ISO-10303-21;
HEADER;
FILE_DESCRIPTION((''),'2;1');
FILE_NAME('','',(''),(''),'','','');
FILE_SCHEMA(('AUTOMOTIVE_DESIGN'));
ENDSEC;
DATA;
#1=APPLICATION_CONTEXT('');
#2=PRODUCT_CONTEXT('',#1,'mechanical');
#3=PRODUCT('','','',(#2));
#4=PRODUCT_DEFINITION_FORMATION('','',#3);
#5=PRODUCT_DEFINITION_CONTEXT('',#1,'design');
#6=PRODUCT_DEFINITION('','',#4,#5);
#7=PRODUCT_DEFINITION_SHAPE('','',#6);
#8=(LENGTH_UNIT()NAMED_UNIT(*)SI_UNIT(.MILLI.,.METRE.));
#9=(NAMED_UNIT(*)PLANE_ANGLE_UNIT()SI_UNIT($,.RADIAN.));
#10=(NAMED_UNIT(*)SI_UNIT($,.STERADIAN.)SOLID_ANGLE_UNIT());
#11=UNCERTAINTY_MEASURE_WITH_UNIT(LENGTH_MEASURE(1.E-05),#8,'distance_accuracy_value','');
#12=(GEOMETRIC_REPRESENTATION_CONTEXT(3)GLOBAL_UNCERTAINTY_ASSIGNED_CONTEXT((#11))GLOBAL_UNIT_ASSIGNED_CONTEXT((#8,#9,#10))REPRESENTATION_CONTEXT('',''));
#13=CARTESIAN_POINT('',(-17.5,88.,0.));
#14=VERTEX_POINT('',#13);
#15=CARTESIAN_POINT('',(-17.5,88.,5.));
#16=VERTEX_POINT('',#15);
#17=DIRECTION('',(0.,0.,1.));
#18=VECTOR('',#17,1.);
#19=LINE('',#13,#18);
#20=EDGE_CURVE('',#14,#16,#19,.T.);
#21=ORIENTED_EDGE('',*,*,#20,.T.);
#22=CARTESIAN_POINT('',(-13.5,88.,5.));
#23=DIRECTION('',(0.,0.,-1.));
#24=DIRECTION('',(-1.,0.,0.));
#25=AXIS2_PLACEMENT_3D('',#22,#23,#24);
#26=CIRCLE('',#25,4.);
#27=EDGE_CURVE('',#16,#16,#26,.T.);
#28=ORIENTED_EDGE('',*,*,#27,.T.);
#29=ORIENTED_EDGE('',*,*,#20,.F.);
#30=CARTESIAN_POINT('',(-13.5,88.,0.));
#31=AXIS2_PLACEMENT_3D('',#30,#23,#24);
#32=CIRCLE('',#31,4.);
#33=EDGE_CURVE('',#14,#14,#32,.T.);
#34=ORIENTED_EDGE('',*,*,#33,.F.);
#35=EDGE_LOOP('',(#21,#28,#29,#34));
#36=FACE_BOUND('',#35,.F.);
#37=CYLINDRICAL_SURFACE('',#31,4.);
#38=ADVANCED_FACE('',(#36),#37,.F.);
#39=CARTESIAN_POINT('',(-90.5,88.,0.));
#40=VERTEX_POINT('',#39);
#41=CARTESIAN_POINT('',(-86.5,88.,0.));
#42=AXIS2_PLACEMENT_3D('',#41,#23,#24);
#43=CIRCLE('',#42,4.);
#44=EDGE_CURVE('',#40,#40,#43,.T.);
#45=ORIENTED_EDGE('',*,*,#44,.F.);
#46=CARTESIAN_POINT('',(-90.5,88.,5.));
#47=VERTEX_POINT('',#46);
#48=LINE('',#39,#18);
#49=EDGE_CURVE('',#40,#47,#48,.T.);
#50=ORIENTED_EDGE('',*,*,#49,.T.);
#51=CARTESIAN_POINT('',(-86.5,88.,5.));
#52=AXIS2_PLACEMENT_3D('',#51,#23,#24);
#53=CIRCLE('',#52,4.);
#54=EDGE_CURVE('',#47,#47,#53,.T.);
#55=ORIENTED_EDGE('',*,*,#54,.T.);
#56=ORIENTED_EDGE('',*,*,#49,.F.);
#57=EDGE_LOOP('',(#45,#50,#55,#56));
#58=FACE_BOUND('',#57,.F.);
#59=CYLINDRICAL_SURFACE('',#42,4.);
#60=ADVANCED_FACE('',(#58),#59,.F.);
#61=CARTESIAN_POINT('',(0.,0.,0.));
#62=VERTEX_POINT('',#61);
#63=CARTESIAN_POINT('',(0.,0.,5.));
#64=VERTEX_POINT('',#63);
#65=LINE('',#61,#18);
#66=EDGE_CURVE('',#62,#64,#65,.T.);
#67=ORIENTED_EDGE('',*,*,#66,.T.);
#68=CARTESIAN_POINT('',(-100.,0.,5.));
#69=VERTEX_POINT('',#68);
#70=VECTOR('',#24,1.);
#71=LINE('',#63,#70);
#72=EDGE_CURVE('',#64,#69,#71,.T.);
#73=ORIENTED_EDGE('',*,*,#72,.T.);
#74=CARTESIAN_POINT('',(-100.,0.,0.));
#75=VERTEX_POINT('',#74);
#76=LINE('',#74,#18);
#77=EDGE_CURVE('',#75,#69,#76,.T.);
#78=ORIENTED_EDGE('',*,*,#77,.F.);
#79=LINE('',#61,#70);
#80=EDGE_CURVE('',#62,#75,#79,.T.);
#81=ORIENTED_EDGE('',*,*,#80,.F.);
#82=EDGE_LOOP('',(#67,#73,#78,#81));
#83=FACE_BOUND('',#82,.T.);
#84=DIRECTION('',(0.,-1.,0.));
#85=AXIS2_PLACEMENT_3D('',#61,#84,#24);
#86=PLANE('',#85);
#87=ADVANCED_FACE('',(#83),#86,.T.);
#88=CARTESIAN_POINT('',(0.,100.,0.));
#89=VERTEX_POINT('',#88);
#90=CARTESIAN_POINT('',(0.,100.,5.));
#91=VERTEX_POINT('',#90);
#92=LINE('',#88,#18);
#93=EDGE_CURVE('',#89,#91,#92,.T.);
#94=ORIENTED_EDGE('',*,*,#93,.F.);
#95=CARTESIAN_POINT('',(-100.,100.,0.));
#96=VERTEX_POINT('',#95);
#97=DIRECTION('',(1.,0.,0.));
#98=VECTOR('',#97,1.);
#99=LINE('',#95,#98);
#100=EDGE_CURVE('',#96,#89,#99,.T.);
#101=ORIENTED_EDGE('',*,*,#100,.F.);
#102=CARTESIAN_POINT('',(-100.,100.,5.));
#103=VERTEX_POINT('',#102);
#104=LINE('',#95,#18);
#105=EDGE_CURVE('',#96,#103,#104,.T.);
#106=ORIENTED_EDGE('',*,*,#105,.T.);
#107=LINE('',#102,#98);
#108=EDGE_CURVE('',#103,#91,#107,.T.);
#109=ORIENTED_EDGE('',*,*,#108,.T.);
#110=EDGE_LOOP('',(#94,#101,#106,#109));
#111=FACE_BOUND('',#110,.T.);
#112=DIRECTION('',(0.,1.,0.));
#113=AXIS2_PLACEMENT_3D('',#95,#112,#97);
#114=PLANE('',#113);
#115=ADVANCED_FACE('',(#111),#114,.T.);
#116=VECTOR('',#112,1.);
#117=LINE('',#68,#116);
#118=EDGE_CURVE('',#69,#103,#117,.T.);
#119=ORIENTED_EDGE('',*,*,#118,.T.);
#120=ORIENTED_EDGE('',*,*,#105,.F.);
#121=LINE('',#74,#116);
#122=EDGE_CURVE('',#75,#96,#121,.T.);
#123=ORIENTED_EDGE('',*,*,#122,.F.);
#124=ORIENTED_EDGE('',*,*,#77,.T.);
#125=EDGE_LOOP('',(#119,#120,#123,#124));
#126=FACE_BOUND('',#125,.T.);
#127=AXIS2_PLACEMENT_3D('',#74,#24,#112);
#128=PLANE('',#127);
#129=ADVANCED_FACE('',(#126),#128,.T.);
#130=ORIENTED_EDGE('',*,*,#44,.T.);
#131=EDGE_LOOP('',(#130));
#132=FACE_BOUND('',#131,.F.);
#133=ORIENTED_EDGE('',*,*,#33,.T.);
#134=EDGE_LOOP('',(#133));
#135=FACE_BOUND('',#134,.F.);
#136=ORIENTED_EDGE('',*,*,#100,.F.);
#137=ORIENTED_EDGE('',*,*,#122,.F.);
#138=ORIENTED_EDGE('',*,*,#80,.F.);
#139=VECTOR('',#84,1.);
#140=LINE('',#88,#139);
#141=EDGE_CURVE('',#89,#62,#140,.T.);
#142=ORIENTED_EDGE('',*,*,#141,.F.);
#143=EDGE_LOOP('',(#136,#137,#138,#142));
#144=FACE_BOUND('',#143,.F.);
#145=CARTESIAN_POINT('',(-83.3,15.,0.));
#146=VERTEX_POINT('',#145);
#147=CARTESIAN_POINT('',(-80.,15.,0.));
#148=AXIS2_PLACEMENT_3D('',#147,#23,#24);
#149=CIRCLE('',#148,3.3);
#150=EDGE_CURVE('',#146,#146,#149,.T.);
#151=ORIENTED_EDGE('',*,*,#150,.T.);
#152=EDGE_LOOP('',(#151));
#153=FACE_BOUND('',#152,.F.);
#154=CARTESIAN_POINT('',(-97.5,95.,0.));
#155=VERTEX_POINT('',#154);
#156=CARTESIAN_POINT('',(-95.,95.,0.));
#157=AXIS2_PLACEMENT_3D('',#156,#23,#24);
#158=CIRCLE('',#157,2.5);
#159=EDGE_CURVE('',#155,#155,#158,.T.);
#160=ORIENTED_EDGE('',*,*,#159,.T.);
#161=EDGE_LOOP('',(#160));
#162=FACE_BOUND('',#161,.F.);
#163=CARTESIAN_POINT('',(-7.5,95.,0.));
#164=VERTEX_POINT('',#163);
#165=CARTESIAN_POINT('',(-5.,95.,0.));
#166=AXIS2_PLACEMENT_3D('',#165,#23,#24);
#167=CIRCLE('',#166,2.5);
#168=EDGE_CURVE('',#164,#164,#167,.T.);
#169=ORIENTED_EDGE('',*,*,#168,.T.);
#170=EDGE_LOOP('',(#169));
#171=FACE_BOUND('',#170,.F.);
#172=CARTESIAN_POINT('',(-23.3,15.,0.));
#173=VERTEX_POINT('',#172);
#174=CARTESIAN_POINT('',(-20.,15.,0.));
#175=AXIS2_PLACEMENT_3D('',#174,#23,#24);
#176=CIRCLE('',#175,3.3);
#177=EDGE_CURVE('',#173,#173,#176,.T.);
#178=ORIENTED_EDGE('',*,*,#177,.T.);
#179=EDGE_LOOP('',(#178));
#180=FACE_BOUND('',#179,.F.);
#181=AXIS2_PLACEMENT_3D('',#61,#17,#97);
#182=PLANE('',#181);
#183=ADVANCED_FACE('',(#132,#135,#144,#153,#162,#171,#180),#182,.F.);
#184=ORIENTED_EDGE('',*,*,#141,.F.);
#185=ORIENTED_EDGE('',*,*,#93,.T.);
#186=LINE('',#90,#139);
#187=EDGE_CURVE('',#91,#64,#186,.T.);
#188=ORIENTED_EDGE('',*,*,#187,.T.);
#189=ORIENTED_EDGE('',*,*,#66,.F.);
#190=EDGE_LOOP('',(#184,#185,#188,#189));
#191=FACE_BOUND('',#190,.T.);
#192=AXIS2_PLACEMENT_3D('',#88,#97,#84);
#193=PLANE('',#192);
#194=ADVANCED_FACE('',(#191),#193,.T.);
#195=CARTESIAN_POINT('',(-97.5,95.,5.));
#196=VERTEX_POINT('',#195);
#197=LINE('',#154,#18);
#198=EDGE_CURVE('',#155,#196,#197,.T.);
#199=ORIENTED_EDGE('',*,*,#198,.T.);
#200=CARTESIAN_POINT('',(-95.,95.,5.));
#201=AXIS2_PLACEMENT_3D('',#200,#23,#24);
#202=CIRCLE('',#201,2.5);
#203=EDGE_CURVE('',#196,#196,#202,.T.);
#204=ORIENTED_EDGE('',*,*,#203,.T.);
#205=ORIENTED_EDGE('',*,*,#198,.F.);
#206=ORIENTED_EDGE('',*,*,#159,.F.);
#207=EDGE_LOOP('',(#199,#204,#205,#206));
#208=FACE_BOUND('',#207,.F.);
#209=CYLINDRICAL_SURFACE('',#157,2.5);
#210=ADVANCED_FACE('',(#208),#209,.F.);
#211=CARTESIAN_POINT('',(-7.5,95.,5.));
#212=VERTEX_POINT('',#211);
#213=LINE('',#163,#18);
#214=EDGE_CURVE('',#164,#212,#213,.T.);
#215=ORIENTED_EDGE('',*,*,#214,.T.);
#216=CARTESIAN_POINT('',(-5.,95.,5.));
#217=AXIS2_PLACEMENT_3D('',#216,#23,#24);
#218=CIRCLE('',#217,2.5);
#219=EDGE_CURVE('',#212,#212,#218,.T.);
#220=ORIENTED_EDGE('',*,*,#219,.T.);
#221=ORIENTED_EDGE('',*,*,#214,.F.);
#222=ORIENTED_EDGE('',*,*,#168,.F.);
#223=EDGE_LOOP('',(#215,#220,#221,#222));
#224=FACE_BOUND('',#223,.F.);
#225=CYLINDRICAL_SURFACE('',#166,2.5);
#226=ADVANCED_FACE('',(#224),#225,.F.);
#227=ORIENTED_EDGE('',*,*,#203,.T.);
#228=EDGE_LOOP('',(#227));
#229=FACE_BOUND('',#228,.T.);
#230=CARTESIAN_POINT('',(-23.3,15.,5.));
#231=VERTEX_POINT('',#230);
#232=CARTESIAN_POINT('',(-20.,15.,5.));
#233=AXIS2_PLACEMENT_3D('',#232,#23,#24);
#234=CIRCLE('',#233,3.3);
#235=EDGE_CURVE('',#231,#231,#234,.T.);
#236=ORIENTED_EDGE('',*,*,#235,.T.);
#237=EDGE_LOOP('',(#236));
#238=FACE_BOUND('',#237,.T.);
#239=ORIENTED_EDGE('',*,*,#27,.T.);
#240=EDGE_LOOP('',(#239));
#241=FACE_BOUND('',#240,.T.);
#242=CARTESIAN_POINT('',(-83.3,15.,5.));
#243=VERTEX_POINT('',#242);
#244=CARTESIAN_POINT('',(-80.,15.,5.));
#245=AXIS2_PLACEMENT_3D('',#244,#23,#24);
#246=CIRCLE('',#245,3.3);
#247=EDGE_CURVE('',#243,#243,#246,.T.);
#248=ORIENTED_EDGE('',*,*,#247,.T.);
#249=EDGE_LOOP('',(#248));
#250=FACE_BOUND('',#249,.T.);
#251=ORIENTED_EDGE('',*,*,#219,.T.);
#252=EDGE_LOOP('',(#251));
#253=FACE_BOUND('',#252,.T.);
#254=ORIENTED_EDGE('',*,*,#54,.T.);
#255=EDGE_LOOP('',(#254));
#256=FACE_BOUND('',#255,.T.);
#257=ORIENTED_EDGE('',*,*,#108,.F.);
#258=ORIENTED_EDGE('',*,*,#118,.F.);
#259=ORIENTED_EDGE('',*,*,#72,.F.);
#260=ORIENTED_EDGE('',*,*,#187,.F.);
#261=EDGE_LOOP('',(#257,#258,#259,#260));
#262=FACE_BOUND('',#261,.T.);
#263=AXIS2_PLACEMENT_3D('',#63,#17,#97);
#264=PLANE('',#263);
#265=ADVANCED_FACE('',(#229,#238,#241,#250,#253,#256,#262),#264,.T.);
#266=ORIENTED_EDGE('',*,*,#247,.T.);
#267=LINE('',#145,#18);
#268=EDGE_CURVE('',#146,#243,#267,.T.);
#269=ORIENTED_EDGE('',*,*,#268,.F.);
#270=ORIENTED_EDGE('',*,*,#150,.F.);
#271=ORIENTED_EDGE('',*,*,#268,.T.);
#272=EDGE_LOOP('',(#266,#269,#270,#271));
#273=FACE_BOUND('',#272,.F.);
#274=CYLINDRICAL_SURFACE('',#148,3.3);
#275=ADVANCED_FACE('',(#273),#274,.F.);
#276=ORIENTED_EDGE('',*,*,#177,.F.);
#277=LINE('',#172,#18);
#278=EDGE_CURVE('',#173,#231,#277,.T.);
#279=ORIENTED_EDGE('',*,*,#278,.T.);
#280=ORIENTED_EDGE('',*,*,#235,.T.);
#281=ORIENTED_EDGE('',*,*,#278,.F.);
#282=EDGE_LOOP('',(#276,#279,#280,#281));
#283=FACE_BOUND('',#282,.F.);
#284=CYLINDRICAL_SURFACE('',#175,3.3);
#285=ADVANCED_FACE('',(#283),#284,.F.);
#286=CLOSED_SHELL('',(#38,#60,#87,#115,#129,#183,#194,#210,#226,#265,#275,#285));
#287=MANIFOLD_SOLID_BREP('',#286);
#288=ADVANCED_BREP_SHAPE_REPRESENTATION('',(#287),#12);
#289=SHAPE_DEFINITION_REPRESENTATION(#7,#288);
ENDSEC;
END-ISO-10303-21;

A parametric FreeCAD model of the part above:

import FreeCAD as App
import Part
import Sketcher

doc = App.newDocument("Part")
params = doc.addObject("Spreadsheet::Sheet", "Params")
for row, (alias, value) in enumerate([
    ("sketch1_width", "100 mm"),
    ("pad1_length", "5 mm"),
    ("sketch2_diameter", "6.6 mm"),
    ("sketch3_diameter", "8 mm"),
    ("sketch3_diameter2", "5 mm"),
    ("pocket2_length", "10 mm"),
], start=1):
    params.set(f"A{row}", alias)
    params.set(f"B{row}", "=" + value)
    params.setAlias(f"B{row}", alias)

body = doc.addObject("PartDesign::Body", "Body")

# Sketch on XY plane
sketch1 = body.newObject("Sketcher::SketchObject", "Sketch")
sketch1.AttachmentSupport = (doc.getObject("XY_Plane"), [""])
sketch1.MapMode = "FlatFace"
sketch1.addGeometry([
    Part.LineSegment(App.Vector(-100, 0, 0), App.Vector(0, 0, 0)),
    Part.LineSegment(App.Vector(0, 0, 0), App.Vector(0, 100, 0)),
    Part.LineSegment(App.Vector(0, 100, 0), App.Vector(-100, 100, 0)),
    Part.LineSegment(App.Vector(-100, 100, 0), App.Vector(-100, 0, 0)),
], False)
sketch1.addConstraint([
    Sketcher.Constraint("Coincident", 0, 2, 1, 1),
    Sketcher.Constraint("Coincident", 1, 2, 2, 1),
    Sketcher.Constraint("Coincident", 2, 2, 3, 1),
    Sketcher.Constraint("Coincident", 3, 2, 0, 1),
    Sketcher.Constraint("Horizontal", 0),
    Sketcher.Constraint("Vertical", 1),
    Sketcher.Constraint("Horizontal", 2),
    Sketcher.Constraint("Vertical", 3),
    Sketcher.Constraint("Coincident", 0, 2, -1, 1),
    Sketcher.Constraint("Equal", 2, 1),
    Sketcher.Constraint("DistanceX", 0, 1, 0, 2, 100.0),
])
sketch1.setExpression("Constraints[10]", "Params.sketch1_width")
pad1 = body.newObject("PartDesign::Pad", "Pad")
pad1.Profile = sketch1
pad1.setExpression("Length", "Params.pad1_length")

# Sketch on XY plane
sketch2 = body.newObject("Sketcher::SketchObject", "Sketch001")
sketch2.AttachmentSupport = (doc.getObject("XY_Plane"), [""])
sketch2.MapMode = "FlatFace"
sketch2.addGeometry([
    Part.Circle(App.Vector(-80, 15, 0), App.Vector(0, 0, 1), 3.3),
    Part.Circle(App.Vector(-20, 15, 0), App.Vector(0, 0, 1), 3.3),
], False)
sketch2.addConstraint([
    Sketcher.Constraint("Equal", 0, 1),
    Sketcher.Constraint("Horizontal", 0, 3, 1, 3),
    Sketcher.Constraint("Diameter", 0, 6.6),
    Sketcher.Constraint("DistanceX", 0, 3, -1, 1, 80.0),
    Sketcher.Constraint("DistanceY", -1, 1, 0, 3, 15.0),
    Sketcher.Constraint("DistanceX", 1, 3, -1, 1, 20.0),
])
sketch2.setExpression("Constraints[2]", "Params.sketch2_diameter")
pocket1 = body.newObject("PartDesign::Pocket", "Pocket")
pocket1.Profile = sketch2
pocket1.Type = "ThroughAll"
pocket1.Midplane = True

# Sketch on XY plane
sketch3 = body.newObject("Sketcher::SketchObject", "Sketch002")
sketch3.AttachmentSupport = (doc.getObject("XY_Plane"), [""])
sketch3.MapMode = "FlatFace"
sketch3.addGeometry([
    Part.Circle(App.Vector(-86.5, 88, 0), App.Vector(0, 0, 1), 4),
    Part.Circle(App.Vector(-95, 95, 0), App.Vector(0, 0, 1), 2.5),
    Part.Circle(App.Vector(-13.5, 88, 0), App.Vector(0, 0, 1), 4),
    Part.Circle(App.Vector(-5, 95, 0), App.Vector(0, 0, 1), 2.5),
], False)
sketch3.addConstraint([
    Sketcher.Constraint("Equal", 0, 2),
    Sketcher.Constraint("Equal", 1, 3),
    Sketcher.Constraint("Horizontal", 0, 3, 2, 3),
    Sketcher.Constraint("Horizontal", 1, 3, 3, 3),
    Sketcher.Constraint("Diameter", 0, 8.0),
    Sketcher.Constraint("Diameter", 1, 5.0),
    Sketcher.Constraint("DistanceX", 3, 3, -1, 1, 5.0),
    Sketcher.Constraint("DistanceY", 0, 3, 1, 3, 7.0),
    Sketcher.Constraint("DistanceX", 1, 3, 0, 3, 8.5),
    Sketcher.Constraint("DistanceX", 2, 3, 3, 3, 8.5),
    Sketcher.Constraint("DistanceY", -1, 1, 0, 3, 88.0),
    Sketcher.Constraint("DistanceX", 1, 3, -1, 1, 95.0),
])
sketch3.setExpression("Constraints[4]", "Params.sketch3_diameter")
sketch3.setExpression("Constraints[5]", "Params.sketch3_diameter2")
pocket2 = body.newObject("PartDesign::Pocket", "Pocket001")
pocket2.Profile = sketch3
pocket2.setExpression("Length", "Params.pocket2_length")
pocket2.Reversed = True

doc.recompute()
